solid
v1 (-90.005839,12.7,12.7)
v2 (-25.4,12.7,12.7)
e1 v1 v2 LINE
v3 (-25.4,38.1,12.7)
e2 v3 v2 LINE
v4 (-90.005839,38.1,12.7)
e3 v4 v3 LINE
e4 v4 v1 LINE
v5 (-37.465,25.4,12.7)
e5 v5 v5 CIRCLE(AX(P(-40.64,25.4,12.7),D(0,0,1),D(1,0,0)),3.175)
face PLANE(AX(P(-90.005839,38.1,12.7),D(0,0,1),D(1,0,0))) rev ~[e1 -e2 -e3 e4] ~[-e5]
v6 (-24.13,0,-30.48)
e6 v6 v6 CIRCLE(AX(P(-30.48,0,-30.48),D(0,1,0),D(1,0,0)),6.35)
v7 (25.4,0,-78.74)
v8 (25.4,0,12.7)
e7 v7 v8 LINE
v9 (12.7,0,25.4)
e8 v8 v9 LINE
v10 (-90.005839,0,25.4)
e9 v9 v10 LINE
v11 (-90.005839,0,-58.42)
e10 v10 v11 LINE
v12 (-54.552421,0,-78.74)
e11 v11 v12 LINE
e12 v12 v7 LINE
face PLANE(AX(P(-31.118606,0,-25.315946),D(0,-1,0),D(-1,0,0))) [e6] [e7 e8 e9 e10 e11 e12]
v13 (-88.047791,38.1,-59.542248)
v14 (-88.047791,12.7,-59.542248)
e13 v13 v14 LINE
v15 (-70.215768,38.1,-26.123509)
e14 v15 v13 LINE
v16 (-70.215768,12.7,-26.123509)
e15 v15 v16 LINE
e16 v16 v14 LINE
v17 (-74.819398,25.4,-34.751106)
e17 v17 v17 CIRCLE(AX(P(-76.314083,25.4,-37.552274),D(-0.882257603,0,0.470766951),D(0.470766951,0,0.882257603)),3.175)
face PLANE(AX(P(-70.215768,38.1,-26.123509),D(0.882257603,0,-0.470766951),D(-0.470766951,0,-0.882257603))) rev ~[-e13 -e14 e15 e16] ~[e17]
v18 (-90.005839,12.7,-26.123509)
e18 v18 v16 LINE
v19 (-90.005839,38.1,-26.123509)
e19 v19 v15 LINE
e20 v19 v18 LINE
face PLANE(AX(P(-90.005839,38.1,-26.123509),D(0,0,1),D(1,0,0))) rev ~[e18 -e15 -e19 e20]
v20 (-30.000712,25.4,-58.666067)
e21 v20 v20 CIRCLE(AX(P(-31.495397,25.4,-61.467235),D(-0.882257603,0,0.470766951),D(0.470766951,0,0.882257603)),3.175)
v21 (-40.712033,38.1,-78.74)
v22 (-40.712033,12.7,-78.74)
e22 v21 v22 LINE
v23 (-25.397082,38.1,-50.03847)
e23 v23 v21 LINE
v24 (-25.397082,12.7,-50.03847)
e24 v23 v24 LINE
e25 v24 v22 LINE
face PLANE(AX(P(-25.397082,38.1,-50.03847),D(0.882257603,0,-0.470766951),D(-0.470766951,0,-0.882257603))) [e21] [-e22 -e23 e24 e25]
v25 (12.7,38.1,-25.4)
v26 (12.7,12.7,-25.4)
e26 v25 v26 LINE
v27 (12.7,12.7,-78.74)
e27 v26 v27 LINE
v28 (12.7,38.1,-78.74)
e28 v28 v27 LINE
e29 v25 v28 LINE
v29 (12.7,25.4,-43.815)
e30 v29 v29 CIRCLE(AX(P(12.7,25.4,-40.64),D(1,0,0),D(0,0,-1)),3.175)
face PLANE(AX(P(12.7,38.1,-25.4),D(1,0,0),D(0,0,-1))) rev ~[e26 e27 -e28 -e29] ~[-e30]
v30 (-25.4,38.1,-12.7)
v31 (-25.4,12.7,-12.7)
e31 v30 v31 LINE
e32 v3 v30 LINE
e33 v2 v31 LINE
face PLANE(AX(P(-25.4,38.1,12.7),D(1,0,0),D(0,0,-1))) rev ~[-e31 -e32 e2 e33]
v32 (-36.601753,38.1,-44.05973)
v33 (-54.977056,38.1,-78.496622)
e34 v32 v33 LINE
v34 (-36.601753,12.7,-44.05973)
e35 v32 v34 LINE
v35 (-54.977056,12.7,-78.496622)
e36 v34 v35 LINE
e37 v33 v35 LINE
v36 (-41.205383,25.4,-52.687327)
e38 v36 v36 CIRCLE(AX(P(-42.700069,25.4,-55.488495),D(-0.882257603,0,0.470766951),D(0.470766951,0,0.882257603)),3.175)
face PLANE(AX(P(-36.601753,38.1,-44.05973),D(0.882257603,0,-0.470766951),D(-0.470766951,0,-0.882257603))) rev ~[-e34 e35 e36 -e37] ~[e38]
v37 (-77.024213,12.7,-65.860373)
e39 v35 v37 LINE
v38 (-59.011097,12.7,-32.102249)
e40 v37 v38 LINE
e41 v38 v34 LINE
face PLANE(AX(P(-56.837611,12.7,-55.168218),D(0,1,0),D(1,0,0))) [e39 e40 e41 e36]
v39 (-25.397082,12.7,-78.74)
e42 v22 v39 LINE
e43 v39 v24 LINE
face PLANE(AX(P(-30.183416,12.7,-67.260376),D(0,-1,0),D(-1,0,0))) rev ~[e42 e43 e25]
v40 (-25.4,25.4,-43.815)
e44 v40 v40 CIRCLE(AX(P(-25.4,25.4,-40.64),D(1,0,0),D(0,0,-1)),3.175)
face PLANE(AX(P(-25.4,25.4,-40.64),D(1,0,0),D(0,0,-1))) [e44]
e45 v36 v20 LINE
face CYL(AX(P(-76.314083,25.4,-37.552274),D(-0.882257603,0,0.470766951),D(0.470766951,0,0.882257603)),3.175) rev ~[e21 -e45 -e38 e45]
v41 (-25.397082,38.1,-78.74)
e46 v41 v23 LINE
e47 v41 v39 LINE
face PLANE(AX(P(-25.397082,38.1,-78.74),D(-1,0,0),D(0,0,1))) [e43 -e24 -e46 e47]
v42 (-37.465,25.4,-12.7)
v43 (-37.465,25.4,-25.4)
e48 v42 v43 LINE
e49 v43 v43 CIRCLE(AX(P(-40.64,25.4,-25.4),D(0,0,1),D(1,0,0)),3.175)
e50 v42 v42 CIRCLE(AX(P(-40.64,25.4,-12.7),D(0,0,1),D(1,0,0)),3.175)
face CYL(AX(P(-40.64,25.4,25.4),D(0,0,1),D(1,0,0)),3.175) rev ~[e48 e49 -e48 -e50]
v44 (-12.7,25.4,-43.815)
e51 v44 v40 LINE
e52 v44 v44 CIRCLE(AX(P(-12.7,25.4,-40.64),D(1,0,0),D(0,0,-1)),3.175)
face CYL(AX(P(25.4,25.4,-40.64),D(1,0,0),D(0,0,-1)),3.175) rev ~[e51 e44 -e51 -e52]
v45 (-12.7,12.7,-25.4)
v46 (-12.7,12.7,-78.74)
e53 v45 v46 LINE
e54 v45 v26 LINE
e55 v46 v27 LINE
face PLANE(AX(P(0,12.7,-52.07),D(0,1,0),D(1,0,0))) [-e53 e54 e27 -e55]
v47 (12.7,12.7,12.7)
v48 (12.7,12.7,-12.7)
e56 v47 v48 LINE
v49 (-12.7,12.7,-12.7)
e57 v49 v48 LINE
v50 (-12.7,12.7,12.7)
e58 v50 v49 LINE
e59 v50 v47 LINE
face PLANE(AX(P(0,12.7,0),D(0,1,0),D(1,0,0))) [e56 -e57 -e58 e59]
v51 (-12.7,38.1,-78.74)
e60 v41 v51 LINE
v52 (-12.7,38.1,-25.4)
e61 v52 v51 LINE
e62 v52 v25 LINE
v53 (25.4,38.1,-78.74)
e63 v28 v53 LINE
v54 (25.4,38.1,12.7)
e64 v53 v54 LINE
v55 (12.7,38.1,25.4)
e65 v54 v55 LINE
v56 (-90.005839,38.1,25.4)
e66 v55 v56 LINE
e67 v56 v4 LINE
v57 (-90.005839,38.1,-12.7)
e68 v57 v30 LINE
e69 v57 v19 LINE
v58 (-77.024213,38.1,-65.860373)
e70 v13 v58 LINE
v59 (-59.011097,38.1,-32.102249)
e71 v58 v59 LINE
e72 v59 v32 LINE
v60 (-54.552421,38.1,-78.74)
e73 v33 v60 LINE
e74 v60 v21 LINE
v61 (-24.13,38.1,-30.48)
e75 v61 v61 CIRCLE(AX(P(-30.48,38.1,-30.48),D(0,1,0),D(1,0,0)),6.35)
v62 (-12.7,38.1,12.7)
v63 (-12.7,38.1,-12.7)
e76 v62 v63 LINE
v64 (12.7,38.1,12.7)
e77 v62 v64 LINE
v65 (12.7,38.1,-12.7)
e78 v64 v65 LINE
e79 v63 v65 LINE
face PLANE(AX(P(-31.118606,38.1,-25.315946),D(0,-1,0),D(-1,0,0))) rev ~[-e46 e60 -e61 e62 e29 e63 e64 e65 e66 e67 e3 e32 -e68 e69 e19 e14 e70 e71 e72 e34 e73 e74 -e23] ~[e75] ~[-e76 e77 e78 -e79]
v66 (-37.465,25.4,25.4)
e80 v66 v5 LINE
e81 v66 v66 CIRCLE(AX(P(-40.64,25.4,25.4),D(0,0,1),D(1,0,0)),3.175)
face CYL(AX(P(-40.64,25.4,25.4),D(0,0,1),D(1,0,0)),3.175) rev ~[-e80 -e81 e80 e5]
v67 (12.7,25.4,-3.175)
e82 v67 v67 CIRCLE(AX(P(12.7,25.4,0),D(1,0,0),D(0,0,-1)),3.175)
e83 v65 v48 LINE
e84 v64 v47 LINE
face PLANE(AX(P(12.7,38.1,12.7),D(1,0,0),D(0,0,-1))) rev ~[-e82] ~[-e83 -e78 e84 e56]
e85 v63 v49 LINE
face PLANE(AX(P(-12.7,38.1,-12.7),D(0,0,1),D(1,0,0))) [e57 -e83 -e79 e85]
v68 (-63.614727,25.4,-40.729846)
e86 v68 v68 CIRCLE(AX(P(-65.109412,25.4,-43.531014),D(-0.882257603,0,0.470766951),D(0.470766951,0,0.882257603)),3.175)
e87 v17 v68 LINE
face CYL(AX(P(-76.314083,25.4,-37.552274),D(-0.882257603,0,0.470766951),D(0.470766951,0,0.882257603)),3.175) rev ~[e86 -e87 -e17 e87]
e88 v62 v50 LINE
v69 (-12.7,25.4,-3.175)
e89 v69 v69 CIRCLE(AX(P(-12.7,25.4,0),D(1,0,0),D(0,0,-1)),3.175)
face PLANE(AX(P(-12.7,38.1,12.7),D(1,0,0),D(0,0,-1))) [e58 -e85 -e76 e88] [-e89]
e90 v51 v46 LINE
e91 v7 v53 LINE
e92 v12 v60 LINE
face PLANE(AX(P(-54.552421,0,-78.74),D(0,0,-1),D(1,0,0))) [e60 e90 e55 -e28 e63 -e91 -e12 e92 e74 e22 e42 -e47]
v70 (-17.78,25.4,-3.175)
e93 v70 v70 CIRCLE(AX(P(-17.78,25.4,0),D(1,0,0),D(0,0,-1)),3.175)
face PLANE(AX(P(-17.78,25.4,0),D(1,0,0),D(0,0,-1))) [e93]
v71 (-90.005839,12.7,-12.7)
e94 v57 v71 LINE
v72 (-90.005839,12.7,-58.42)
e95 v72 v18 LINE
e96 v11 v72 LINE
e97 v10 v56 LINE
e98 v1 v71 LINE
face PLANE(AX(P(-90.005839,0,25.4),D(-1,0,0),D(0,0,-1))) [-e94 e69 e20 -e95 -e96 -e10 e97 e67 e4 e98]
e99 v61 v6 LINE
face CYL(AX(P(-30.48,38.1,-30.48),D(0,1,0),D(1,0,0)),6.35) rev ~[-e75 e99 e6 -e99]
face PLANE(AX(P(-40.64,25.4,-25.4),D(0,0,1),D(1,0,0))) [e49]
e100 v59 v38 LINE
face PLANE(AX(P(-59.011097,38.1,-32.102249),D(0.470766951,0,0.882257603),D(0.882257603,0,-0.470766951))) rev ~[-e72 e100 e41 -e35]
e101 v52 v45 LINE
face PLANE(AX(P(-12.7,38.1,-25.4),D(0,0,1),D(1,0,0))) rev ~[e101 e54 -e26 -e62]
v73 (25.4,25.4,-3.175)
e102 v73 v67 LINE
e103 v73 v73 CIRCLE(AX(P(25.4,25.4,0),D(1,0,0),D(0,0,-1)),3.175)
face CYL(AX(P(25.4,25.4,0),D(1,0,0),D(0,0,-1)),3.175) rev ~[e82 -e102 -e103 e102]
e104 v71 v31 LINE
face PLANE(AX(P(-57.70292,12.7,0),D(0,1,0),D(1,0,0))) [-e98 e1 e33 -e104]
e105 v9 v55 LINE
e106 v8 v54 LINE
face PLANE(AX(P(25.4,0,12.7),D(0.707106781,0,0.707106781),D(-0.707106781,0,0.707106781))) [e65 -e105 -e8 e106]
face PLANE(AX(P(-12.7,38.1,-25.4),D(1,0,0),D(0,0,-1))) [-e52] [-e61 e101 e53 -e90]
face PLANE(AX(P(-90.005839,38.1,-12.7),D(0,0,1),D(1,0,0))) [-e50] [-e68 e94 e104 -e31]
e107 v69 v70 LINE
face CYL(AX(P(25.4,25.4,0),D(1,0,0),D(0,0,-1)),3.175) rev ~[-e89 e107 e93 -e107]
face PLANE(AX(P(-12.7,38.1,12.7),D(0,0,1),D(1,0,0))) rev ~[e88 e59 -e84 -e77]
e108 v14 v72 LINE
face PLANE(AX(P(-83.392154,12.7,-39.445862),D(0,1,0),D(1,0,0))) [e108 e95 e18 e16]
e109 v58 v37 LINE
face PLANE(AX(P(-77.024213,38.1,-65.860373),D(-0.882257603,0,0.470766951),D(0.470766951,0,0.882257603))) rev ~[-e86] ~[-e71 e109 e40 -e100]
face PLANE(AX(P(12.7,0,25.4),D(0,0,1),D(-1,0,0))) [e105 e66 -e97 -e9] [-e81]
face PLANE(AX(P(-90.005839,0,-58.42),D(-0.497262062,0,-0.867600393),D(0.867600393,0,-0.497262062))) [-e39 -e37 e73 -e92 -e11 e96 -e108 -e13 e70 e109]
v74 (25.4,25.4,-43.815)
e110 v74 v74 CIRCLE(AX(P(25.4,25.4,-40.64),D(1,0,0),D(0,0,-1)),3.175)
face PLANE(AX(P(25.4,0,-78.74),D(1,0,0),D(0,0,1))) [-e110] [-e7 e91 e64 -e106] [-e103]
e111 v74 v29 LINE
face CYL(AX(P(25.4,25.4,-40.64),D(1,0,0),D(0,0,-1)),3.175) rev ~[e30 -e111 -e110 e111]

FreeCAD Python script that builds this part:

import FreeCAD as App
import Part
import Sketcher
from FreeCAD import Vector
Q = App.Units.Quantity

doc = App.newDocument("Part")
params = doc.addObject("Spreadsheet::Sheet", "Params")
for row, (alias, value) in enumerate([
    ("sketch1_height", "3.6 in"),
    ("sketch1_height2", "3.3 in"),
    ("pad1_length", "1.5 in"),
    ("sketch2_width", "1 in"),
    ("pocket1_length", "1 in"),
    ("sketch3_height", "1 in"),
    ("pocket2_length", "1 in"),
    ("sketch4_width", "1 in"),
    ("sketch4_height", "2.1 in"),
    ("pocket3_length", "1 in"),
    ("sketch5_length", "1 in"),
    ("pocket4_length", "1 in"),
    ("pocket5_length", "1 in"),
    ("sketch7_diameter", "0.25 in"),
    ("pocket6_length", "2 in"),
    ("sketch8_diameter", "0.25 in"),
    ("pocket7_length", "2 in"),
    ("sketch9_diameter", "0.25 in"),
    ("pocket8_length", "1.7 in"),
    ("sketch10_diameter", "0.25 in"),
    ("pocket9_length", "2 in"),
    ("sketch11_diameter", "0.5 in"),
], start=1):
    params.set(f"A{row}", alias)
    params.set(f"B{row}", "=" + value)
    params.setAlias(f"B{row}", alias)

body = doc.addObject("PartDesign::Body", "Body")

sketch1 = body.newObject("Sketcher::SketchObject", "Sketch")
sketch1.AttachmentSupport = (doc.getObject("XZ_Plane"), [""])
sketch1.MapMode = "FlatFace"
sketch1.addGeometry([
    Part.LineSegment(Vector(25.4, 12.7, 0), Vector(25.4, -78.74, 0)),
    Part.LineSegment(Vector(25.4, -78.74, 0), Vector(-54.552421, -78.74, 0)),
    Part.LineSegment(Vector(-54.552421, -78.74, 0), Vector(-90.005839, -58.42, 0)),
    Part.LineSegment(Vector(-90.005839, -58.42, 0), Vector(-90.005839, 25.4, 0)),
    Part.LineSegment(Vector(-90.005839, 25.4, 0), Vector(12.7, 25.4, 0)),
    Part.LineSegment(Vector(12.7, 25.4, 0), Vector(25.4, 12.7, 0)),
], False)
sketch1.addConstraint([
    Sketcher.Constraint("Coincident", 0, 2, 1, 1),
    Sketcher.Constraint("Coincident", 1, 2, 2, 1),
    Sketcher.Constraint("Coincident", 2, 2, 3, 1),
    Sketcher.Constraint("Coincident", 3, 2, 4, 1),
    Sketcher.Constraint("Coincident", 4, 2, 5, 1),
    Sketcher.Constraint("Coincident", 5, 2, 0, 1),
    Sketcher.Constraint("Vertical", 0),
    Sketcher.Constraint("Horizontal", 1),
    Sketcher.Constraint("Vertical", 3),
    Sketcher.Constraint("Horizontal", 4),
    Sketcher.Constraint("DistanceY", 0, 2, 0, 1, Q("3.6 in")),
    Sketcher.Constraint("DistanceY", 3, 1, 3, 2, Q("3.3 in")),
    Sketcher.Constraint("DistanceX", -1, 1, 0, 2, Q("1 in")),
    Sketcher.Constraint("DistanceY", -1, 1, 3, 2, Q("1 in")),
    Sketcher.Constraint("Angle", 5, Q("-45 deg")),
    Sketcher.Constraint("DistanceY", 0, 2, -1, 1, Q("3.1 in")),
    Sketcher.Constraint("DistanceX", 1, 2, 1, 1, Q("79.952421 mm")),
    Sketcher.Constraint("DistanceX", 4, 1, 4, 2, Q("102.705839 mm")),
])
sketch1.setExpression("Constraints[10]", "Params.sketch1_height")
sketch1.setExpression("Constraints[11]", "Params.sketch1_height2")
pad1 = body.newObject("PartDesign::Pad", "Pad")
pad1.Profile = sketch1
pad1.setExpression("Length", "Params.pad1_length")
pad1.Reversed = True

sketch2 = body.newObject("Sketcher::SketchObject", "Sketch001")
sketch2.AttachmentSupport = (doc.getObject("XZ_Plane"), [""])
sketch2.MapMode = "FlatFace"
sketch2.AttachmentOffset = App.Placement(Vector(0, 0, -1.5 * 25.4), App.Rotation())
sketch2.addGeometry([
    Part.LineSegment(Vector(-12.7, -12.7, 0), Vector(-12.7, 12.7, 0)),
    Part.LineSegment(Vector(-12.7, 12.7, 0), Vector(12.7, 12.7, 0)),
    Part.LineSegment(Vector(12.7, 12.7, 0), Vector(12.7, -12.7, 0)),
    Part.LineSegment(Vector(12.7, -12.7, 0), Vector(-12.7, -12.7, 0)),
], False)
sketch2.addConstraint([
    Sketcher.Constraint("Coincident", 0, 2, 1, 1),
    Sketcher.Constraint("Coincident", 1, 2, 2, 1),
    Sketcher.Constraint("Coincident", 2, 2, 3, 1),
    Sketcher.Constraint("Coincident", 3, 2, 0, 1),
    Sketcher.Constraint("Vertical", 0),
    Sketcher.Constraint("Horizontal", 1),
    Sketcher.Constraint("Vertical", 2),
    Sketcher.Constraint("Horizontal", 3),
    Sketcher.Constraint("Symmetric", 0, 2, 2, 2, -1, 1),
    Sketcher.Constraint("Equal", 3, 0),
    Sketcher.Constraint("DistanceX", 1, 1, 1, 2, Q("1 in")),
])
sketch2.setExpression("Constraints[10]", "Params.sketch2_width")
pocket1 = body.newObject("PartDesign::Pocket", "Pocket")
pocket1.Profile = sketch2
pocket1.setExpression("Length", "Params.pocket1_length")
pocket1.Reversed = True

sketch3 = body.newObject("Sketcher::SketchObject", "Sketch002")
sketch3.AttachmentSupport = (doc.getObject("XZ_Plane"), [""])
sketch3.MapMode = "FlatFace"
sketch3.AttachmentOffset = App.Placement(Vector(0, 0, -1.5 * 25.4), App.Rotation())
sketch3.addGeometry([
    Part.LineSegment(Vector(-90.005839, -12.7, 0), Vector(-90.005839, 12.7, 0)),
    Part.LineSegment(Vector(-90.005839, 12.7, 0), Vector(-25.4, 12.7, 0)),
    Part.LineSegment(Vector(-25.4, 12.7, 0), Vector(-25.4, -12.7, 0)),
    Part.LineSegment(Vector(-25.4, -12.7, 0), Vector(-90.005839, -12.7, 0)),
], False)
sketch3.addConstraint([
    Sketcher.Constraint("Coincident", 0, 2, 1, 1),
    Sketcher.Constraint("Coincident", 1, 2, 2, 1),
    Sketcher.Constraint("Coincident", 2, 2, 3, 1),
    Sketcher.Constraint("Coincident", 3, 2, 0, 1),
    Sketcher.Constraint("Vertical", 0),
    Sketcher.Constraint("Horizontal", 1),
    Sketcher.Constraint("Vertical", 2),
    Sketcher.Constraint("Horizontal", 3),
    Sketcher.Constraint("DistanceY", 0, 1, 0, 2, Q("1 in")),
    Sketcher.Constraint("DistanceX", 1, 2, -1, 1, Q("1 in")),
    Sketcher.Constraint("DistanceY", -1, 1, 0, 2, Q("0.5 in")),
    Sketcher.Constraint("DistanceX", 1, 1, 1, 2, Q("64.605839 mm")),
])
sketch3.setExpression("Constraints[8]", "Params.sketch3_height")
pocket2 = body.newObject("PartDesign::Pocket", "Pocket001")
pocket2.Profile = sketch3
pocket2.setExpression("Length", "Params.pocket2_length")
pocket2.Reversed = True

sketch4 = body.newObject("Sketcher::SketchObject", "Sketch003")
sketch4.AttachmentSupport = (doc.getObject("XZ_Plane"), [""])
sketch4.MapMode = "FlatFace"
sketch4.AttachmentOffset = App.Placement(Vector(0, 0, -1.5 * 25.4), App.Rotation())
sketch4.addGeometry([
    Part.LineSegment(Vector(-12.7, -78.74, 0), Vector(-12.7, -25.4, 0)),
    Part.LineSegment(Vector(-12.7, -25.4, 0), Vector(12.7, -25.4, 0)),
    Part.LineSegment(Vector(12.7, -25.4, 0), Vector(12.7, -78.74, 0)),
    Part.LineSegment(Vector(12.7, -78.74, 0), Vector(-12.7, -78.74, 0)),
], False)
sketch4.addConstraint([
    Sketcher.Constraint("Coincident", 0, 2, 1, 1),
    Sketcher.Constraint("Coincident", 1, 2, 2, 1),
    Sketcher.Constraint("Coincident", 2, 2, 3, 1),
    Sketcher.Constraint("Coincident", 3, 2, 0, 1),
    Sketcher.Constraint("Vertical", 0),
    Sketcher.Constraint("Horizontal", 1),
    Sketcher.Constraint("Vertical", 2),
    Sketcher.Constraint("Horizontal", 3),
    Sketcher.Constraint("DistanceX", 1, 1, 1, 2, Q("1 in")),
    Sketcher.Constraint("DistanceY", 0, 1, 0, 2, Q("2.1 in")),
    Sketcher.Constraint("DistanceY", 0, 2, -1, 1, Q("1 in")),
    Sketcher.Constraint("DistanceX", 0, 2, -1, 1, Q("0.5 in")),
])
sketch4.setExpression("Constraints[8]", "Params.sketch4_width")
sketch4.setExpression("Constraints[9]", "Params.sketch4_height")
pocket3 = body.newObject("PartDesign::Pocket", "Pocket002")
pocket3.Profile = sketch4
pocket3.setExpression("Length", "Params.pocket3_length")
pocket3.Reversed = True

sketch5 = body.newObject("Sketcher::SketchObject", "Sketch004")
sketch5.AttachmentSupport = (doc.getObject("XZ_Plane"), [""])
sketch5.MapMode = "FlatFace"
sketch5.AttachmentOffset = App.Placement(Vector(0, 0, -1.5 * 25.4), App.Rotation())
sketch5.addGeometry([
    Part.LineSegment(Vector(-59.011097, -32.102249, 0), Vector(-36.601753, -44.05973, 0)),
    Part.LineSegment(Vector(-36.601753, -44.05973, 0), Vector(-54.977056, -78.496622, 0)),
    Part.LineSegment(Vector(-54.977056, -78.496622, 0), Vector(-77.024213, -65.860373, 0)),
    Part.LineSegment(Vector(-77.024213, -65.860373, 0), Vector(-59.011097, -32.102249, 0)),
], False)
sketch5.addConstraint([
    Sketcher.Constraint("Coincident", 0, 2, 1, 1),
    Sketcher.Constraint("Coincident", 1, 2, 2, 1),
    Sketcher.Constraint("Coincident", 2, 2, 3, 1),
    Sketcher.Constraint("Coincident", 3, 2, 0, 1),
    Sketcher.Constraint("Perpendicular", 0, 1),
    Sketcher.Constraint("Parallel", 1, 3),
    Sketcher.Constraint("Distance", 0, Q("1 in")),
    Sketcher.Constraint("Distance", 2, Q("25.411649 mm")),
    Sketcher.Constraint("Distance", 3, Q("38.263341 mm")),
    Sketcher.Constraint("DistanceY", 0, 2, -1, 1, Q("44.05973 mm")),
    Sketcher.Constraint("DistanceY", 1, 2, -1, 1, Q("78.496622 mm")),
    Sketcher.Constraint("DistanceX", 0, 2, -1, 1, Q("36.601753 mm")),
])
sketch5.setExpression("Constraints[6]", "Params.sketch5_length")
pocket4 = body.newObject("PartDesign::Pocket", "Pocket003")
pocket4.Profile = sketch5
pocket4.setExpression("Length", "Params.pocket4_length")
pocket4.Reversed = True

sketch6 = body.newObject("Sketcher::SketchObject", "Sketch005")
sketch6.AttachmentSupport = (doc.getObject("XZ_Plane"), [""])
sketch6.MapMode = "FlatFace"
sketch6.AttachmentOffset = App.Placement(Vector(0, 0, -1.5 * 25.4), App.Rotation())
sketch6.addGeometry([
    Part.LineSegment(Vector(-40.712033, -78.74, 0), Vector(-25.397082, -50.03847, 0)),
    Part.LineSegment(Vector(-25.397082, -50.03847, 0), Vector(-25.397082, -78.74, 0)),
    Part.LineSegment(Vector(-25.397082, -78.74, 0), Vector(-40.712033, -78.74, 0)),
    Part.LineSegment(Vector(-70.215768, -26.123509, 0), Vector(-88.047791, -59.542248, 0)),
    Part.LineSegment(Vector(-88.047791, -59.542248, 0), Vector(-90.005839, -58.42, 0)),
    Part.LineSegment(Vector(-90.005839, -58.42, 0), Vector(-90.005839, -26.123509, 0)),
    Part.LineSegment(Vector(-90.005839, -26.123509, 0), Vector(-70.215768, -26.123509, 0)),
], False)
sketch6.addConstraint([
    Sketcher.Constraint("Coincident", 0, 2, 1, 1),
    Sketcher.Constraint("Coincident", 1, 2, 2, 1),
    Sketcher.Constraint("Coincident", 2, 2, 0, 1),
    Sketcher.Constraint("Coincident", 3, 2, 4, 1),
    Sketcher.Constraint("Coincident", 4, 2, 5, 1),
    Sketcher.Constraint("Coincident", 5, 2, 6, 1),
    Sketcher.Constraint("Coincident", 6, 2, 3, 1),
    Sketcher.Constraint("Vertical", 1),
    Sketcher.Constraint("Horizontal", 2),
    Sketcher.Constraint("Vertical", 5),
    Sketcher.Constraint("Horizontal", 6),
    Sketcher.Constraint("Parallel", 0, 3),
    Sketcher.Constraint("DistanceY", 1, 2, -1, 1, Q("3.1 in")),
    Sketcher.Constraint("DistanceY", 4, 2, -1, 1, Q("2.3 in")),
    Sketcher.Constraint("DistanceX", 2, 2, 2, 1, Q("15.314951 mm")),
    Sketcher.Constraint("DistanceX", 6, 1, 6, 2, Q("19.790071 mm")),
    Sketcher.Constraint("DistanceY", 1, 2, 1, 1, Q("28.70153 mm")),
    Sketcher.Constraint("DistanceY", 5, 1, 5, 2, Q("32.296491 mm")),
    Sketcher.Constraint("DistanceX", 0, 2, -1, 1, Q("25.397082 mm")),
    Sketcher.Constraint("DistanceX", 3, 2, -1, 1, Q("88.047791 mm")),
    Sketcher.Constraint("DistanceY", 3, 2, -1, 1, Q("59.542248 mm")),
])
pocket5 = body.newObject("PartDesign::Pocket", "Pocket004")
pocket5.Profile = sketch6
pocket5.setExpression("Length", "Params.pocket5_length")
pocket5.Reversed = True

sketch7 = body.newObject("Sketcher::SketchObject", "Sketch006")
sketch7.AttachmentSupport = (doc.getObject("XY_Plane"), [""])
sketch7.MapMode = "FlatFace"
sketch7.AttachmentOffset = App.Placement(Vector(0, 0, 1 * 25.4), App.Rotation())
sketch7.addGeometry(Part.Circle(Vector(-40.64, 25.4, 0), Vector(0, 0, 1), 3.175), False)
sketch7.addConstraint([
    Sketcher.Constraint("Diameter", 0, Q("0.25 in")),
    Sketcher.Constraint("DistanceY", -1, 1, 0, 3, Q("1 in")),
    Sketcher.Constraint("DistanceX", 0, 3, -1, 1, Q("1.6 in")),
])
sketch7.setExpression("Constraints[0]", "Params.sketch7_diameter")
pocket6 = body.newObject("PartDesign::Pocket", "Pocket005")
pocket6.Profile = sketch7
pocket6.setExpression("Length", "Params.pocket6_length")

sketch8 = body.newObject("Sketcher::SketchObject", "Sketch007")
sketch8.AttachmentSupport = (doc.getObject("YZ_Plane"), [""])
sketch8.MapMode = "FlatFace"
sketch8.AttachmentOffset = App.Placement(Vector(0, 0, 1 * 25.4), App.Rotation())
sketch8.addGeometry(Part.Circle(Vector(25.4, -40.64, 0), Vector(0, 0, 1), 3.175), False)
sketch8.addConstraint([
    Sketcher.Constraint("Diameter", 0, Q("0.25 in")),
    Sketcher.Constraint("DistanceX", -1, 1, 0, 3, Q("1 in")),
    Sketcher.Constraint("DistanceY", 0, 3, -1, 1, Q("1.6 in")),
])
sketch8.setExpression("Constraints[0]", "Params.sketch8_diameter")
pocket7 = body.newObject("PartDesign::Pocket", "Pocket006")
pocket7.Profile = sketch8
pocket7.setExpression("Length", "Params.pocket7_length")

sketch9 = body.newObject("Sketcher::SketchObject", "Sketch008")
sketch9.AttachmentSupport = (doc.getObject("YZ_Plane"), [""])
sketch9.MapMode = "FlatFace"
sketch9.AttachmentOffset = App.Placement(Vector(0, 0, 1 * 25.4), App.Rotation())
sketch9.addGeometry(Part.Circle(Vector(25.4, 0, 0), Vector(0, 0, 1), 3.175), False)
sketch9.addConstraint([
    Sketcher.Constraint("PointOnObject", 0, 3, -1),
    Sketcher.Constraint("Diameter", 0, Q("0.25 in")),
    Sketcher.Constraint("DistanceX", -1, 1, 0, 3, Q("1 in")),
])
sketch9.setExpression("Constraints[1]", "Params.sketch9_diameter")
pocket8 = body.newObject("PartDesign::Pocket", "Pocket007")
pocket8.Profile = sketch9
pocket8.setExpression("Length", "Params.pocket8_length")

sketch10 = body.newObject("Sketcher::SketchObject", "Sketch009")
sketch10.Placement = App.Placement(Vector(-43.804364, 0, 23.373725), App.Rotation(Vector(0.470766951, 0, 0.882257603), Vector(0, 1, 0), Vector(-0.882257603, 0, 0.470766951), "ZXY"))
sketch10.addGeometry(Part.Circle(Vector(-69.056927, 25.4, 0), Vector(0, 0, 1), 3.175), False)
sketch10.addConstraint([
    Sketcher.Constraint("Diameter", 0, Q("0.25 in")),
    Sketcher.Constraint("DistanceY", -1, 1, 0, 3, Q("1 in")),
    Sketcher.Constraint("DistanceX", 0, 3, -1, 1, Q("69.056927 mm")),
])
sketch10.setExpression("Constraints[0]", "Params.sketch10_diameter")
pocket9 = body.newObject("PartDesign::Pocket", "Pocket008")
pocket9.Profile = sketch10
pocket9.setExpression("Length", "Params.pocket9_length")

sketch11 = body.newObject("Sketcher::SketchObject", "Sketch010")
sketch11.AttachmentSupport = (doc.getObject("XZ_Plane"), [""])
sketch11.MapMode = "FlatFace"
sketch11.AttachmentOffset = App.Placement(Vector(0, 0, -1.5 * 25.4), App.Rotation())
sketch11.addGeometry(Part.Circle(Vector(-30.48, -30.48, 0), Vector(0, 0, 1), 6.35), False)
sketch11.addConstraint([
    Sketcher.Constraint("Diameter", 0, Q("0.5 in")),
    Sketcher.Constraint("DistanceX", 0, 3, -1, 1, Q("1.2 in")),
    Sketcher.Constraint("DistanceY", 0, 3, -1, 1, Q("1.2 in")),
])
sketch11.setExpression("Constraints[0]", "Params.sketch11_diameter")
pocket10 = body.newObject("PartDesign::Pocket", "Pocket009")
pocket10.Profile = sketch11
pocket10.Type = "ThroughAll"
pocket10.Reversed = True

doc.recompute()
